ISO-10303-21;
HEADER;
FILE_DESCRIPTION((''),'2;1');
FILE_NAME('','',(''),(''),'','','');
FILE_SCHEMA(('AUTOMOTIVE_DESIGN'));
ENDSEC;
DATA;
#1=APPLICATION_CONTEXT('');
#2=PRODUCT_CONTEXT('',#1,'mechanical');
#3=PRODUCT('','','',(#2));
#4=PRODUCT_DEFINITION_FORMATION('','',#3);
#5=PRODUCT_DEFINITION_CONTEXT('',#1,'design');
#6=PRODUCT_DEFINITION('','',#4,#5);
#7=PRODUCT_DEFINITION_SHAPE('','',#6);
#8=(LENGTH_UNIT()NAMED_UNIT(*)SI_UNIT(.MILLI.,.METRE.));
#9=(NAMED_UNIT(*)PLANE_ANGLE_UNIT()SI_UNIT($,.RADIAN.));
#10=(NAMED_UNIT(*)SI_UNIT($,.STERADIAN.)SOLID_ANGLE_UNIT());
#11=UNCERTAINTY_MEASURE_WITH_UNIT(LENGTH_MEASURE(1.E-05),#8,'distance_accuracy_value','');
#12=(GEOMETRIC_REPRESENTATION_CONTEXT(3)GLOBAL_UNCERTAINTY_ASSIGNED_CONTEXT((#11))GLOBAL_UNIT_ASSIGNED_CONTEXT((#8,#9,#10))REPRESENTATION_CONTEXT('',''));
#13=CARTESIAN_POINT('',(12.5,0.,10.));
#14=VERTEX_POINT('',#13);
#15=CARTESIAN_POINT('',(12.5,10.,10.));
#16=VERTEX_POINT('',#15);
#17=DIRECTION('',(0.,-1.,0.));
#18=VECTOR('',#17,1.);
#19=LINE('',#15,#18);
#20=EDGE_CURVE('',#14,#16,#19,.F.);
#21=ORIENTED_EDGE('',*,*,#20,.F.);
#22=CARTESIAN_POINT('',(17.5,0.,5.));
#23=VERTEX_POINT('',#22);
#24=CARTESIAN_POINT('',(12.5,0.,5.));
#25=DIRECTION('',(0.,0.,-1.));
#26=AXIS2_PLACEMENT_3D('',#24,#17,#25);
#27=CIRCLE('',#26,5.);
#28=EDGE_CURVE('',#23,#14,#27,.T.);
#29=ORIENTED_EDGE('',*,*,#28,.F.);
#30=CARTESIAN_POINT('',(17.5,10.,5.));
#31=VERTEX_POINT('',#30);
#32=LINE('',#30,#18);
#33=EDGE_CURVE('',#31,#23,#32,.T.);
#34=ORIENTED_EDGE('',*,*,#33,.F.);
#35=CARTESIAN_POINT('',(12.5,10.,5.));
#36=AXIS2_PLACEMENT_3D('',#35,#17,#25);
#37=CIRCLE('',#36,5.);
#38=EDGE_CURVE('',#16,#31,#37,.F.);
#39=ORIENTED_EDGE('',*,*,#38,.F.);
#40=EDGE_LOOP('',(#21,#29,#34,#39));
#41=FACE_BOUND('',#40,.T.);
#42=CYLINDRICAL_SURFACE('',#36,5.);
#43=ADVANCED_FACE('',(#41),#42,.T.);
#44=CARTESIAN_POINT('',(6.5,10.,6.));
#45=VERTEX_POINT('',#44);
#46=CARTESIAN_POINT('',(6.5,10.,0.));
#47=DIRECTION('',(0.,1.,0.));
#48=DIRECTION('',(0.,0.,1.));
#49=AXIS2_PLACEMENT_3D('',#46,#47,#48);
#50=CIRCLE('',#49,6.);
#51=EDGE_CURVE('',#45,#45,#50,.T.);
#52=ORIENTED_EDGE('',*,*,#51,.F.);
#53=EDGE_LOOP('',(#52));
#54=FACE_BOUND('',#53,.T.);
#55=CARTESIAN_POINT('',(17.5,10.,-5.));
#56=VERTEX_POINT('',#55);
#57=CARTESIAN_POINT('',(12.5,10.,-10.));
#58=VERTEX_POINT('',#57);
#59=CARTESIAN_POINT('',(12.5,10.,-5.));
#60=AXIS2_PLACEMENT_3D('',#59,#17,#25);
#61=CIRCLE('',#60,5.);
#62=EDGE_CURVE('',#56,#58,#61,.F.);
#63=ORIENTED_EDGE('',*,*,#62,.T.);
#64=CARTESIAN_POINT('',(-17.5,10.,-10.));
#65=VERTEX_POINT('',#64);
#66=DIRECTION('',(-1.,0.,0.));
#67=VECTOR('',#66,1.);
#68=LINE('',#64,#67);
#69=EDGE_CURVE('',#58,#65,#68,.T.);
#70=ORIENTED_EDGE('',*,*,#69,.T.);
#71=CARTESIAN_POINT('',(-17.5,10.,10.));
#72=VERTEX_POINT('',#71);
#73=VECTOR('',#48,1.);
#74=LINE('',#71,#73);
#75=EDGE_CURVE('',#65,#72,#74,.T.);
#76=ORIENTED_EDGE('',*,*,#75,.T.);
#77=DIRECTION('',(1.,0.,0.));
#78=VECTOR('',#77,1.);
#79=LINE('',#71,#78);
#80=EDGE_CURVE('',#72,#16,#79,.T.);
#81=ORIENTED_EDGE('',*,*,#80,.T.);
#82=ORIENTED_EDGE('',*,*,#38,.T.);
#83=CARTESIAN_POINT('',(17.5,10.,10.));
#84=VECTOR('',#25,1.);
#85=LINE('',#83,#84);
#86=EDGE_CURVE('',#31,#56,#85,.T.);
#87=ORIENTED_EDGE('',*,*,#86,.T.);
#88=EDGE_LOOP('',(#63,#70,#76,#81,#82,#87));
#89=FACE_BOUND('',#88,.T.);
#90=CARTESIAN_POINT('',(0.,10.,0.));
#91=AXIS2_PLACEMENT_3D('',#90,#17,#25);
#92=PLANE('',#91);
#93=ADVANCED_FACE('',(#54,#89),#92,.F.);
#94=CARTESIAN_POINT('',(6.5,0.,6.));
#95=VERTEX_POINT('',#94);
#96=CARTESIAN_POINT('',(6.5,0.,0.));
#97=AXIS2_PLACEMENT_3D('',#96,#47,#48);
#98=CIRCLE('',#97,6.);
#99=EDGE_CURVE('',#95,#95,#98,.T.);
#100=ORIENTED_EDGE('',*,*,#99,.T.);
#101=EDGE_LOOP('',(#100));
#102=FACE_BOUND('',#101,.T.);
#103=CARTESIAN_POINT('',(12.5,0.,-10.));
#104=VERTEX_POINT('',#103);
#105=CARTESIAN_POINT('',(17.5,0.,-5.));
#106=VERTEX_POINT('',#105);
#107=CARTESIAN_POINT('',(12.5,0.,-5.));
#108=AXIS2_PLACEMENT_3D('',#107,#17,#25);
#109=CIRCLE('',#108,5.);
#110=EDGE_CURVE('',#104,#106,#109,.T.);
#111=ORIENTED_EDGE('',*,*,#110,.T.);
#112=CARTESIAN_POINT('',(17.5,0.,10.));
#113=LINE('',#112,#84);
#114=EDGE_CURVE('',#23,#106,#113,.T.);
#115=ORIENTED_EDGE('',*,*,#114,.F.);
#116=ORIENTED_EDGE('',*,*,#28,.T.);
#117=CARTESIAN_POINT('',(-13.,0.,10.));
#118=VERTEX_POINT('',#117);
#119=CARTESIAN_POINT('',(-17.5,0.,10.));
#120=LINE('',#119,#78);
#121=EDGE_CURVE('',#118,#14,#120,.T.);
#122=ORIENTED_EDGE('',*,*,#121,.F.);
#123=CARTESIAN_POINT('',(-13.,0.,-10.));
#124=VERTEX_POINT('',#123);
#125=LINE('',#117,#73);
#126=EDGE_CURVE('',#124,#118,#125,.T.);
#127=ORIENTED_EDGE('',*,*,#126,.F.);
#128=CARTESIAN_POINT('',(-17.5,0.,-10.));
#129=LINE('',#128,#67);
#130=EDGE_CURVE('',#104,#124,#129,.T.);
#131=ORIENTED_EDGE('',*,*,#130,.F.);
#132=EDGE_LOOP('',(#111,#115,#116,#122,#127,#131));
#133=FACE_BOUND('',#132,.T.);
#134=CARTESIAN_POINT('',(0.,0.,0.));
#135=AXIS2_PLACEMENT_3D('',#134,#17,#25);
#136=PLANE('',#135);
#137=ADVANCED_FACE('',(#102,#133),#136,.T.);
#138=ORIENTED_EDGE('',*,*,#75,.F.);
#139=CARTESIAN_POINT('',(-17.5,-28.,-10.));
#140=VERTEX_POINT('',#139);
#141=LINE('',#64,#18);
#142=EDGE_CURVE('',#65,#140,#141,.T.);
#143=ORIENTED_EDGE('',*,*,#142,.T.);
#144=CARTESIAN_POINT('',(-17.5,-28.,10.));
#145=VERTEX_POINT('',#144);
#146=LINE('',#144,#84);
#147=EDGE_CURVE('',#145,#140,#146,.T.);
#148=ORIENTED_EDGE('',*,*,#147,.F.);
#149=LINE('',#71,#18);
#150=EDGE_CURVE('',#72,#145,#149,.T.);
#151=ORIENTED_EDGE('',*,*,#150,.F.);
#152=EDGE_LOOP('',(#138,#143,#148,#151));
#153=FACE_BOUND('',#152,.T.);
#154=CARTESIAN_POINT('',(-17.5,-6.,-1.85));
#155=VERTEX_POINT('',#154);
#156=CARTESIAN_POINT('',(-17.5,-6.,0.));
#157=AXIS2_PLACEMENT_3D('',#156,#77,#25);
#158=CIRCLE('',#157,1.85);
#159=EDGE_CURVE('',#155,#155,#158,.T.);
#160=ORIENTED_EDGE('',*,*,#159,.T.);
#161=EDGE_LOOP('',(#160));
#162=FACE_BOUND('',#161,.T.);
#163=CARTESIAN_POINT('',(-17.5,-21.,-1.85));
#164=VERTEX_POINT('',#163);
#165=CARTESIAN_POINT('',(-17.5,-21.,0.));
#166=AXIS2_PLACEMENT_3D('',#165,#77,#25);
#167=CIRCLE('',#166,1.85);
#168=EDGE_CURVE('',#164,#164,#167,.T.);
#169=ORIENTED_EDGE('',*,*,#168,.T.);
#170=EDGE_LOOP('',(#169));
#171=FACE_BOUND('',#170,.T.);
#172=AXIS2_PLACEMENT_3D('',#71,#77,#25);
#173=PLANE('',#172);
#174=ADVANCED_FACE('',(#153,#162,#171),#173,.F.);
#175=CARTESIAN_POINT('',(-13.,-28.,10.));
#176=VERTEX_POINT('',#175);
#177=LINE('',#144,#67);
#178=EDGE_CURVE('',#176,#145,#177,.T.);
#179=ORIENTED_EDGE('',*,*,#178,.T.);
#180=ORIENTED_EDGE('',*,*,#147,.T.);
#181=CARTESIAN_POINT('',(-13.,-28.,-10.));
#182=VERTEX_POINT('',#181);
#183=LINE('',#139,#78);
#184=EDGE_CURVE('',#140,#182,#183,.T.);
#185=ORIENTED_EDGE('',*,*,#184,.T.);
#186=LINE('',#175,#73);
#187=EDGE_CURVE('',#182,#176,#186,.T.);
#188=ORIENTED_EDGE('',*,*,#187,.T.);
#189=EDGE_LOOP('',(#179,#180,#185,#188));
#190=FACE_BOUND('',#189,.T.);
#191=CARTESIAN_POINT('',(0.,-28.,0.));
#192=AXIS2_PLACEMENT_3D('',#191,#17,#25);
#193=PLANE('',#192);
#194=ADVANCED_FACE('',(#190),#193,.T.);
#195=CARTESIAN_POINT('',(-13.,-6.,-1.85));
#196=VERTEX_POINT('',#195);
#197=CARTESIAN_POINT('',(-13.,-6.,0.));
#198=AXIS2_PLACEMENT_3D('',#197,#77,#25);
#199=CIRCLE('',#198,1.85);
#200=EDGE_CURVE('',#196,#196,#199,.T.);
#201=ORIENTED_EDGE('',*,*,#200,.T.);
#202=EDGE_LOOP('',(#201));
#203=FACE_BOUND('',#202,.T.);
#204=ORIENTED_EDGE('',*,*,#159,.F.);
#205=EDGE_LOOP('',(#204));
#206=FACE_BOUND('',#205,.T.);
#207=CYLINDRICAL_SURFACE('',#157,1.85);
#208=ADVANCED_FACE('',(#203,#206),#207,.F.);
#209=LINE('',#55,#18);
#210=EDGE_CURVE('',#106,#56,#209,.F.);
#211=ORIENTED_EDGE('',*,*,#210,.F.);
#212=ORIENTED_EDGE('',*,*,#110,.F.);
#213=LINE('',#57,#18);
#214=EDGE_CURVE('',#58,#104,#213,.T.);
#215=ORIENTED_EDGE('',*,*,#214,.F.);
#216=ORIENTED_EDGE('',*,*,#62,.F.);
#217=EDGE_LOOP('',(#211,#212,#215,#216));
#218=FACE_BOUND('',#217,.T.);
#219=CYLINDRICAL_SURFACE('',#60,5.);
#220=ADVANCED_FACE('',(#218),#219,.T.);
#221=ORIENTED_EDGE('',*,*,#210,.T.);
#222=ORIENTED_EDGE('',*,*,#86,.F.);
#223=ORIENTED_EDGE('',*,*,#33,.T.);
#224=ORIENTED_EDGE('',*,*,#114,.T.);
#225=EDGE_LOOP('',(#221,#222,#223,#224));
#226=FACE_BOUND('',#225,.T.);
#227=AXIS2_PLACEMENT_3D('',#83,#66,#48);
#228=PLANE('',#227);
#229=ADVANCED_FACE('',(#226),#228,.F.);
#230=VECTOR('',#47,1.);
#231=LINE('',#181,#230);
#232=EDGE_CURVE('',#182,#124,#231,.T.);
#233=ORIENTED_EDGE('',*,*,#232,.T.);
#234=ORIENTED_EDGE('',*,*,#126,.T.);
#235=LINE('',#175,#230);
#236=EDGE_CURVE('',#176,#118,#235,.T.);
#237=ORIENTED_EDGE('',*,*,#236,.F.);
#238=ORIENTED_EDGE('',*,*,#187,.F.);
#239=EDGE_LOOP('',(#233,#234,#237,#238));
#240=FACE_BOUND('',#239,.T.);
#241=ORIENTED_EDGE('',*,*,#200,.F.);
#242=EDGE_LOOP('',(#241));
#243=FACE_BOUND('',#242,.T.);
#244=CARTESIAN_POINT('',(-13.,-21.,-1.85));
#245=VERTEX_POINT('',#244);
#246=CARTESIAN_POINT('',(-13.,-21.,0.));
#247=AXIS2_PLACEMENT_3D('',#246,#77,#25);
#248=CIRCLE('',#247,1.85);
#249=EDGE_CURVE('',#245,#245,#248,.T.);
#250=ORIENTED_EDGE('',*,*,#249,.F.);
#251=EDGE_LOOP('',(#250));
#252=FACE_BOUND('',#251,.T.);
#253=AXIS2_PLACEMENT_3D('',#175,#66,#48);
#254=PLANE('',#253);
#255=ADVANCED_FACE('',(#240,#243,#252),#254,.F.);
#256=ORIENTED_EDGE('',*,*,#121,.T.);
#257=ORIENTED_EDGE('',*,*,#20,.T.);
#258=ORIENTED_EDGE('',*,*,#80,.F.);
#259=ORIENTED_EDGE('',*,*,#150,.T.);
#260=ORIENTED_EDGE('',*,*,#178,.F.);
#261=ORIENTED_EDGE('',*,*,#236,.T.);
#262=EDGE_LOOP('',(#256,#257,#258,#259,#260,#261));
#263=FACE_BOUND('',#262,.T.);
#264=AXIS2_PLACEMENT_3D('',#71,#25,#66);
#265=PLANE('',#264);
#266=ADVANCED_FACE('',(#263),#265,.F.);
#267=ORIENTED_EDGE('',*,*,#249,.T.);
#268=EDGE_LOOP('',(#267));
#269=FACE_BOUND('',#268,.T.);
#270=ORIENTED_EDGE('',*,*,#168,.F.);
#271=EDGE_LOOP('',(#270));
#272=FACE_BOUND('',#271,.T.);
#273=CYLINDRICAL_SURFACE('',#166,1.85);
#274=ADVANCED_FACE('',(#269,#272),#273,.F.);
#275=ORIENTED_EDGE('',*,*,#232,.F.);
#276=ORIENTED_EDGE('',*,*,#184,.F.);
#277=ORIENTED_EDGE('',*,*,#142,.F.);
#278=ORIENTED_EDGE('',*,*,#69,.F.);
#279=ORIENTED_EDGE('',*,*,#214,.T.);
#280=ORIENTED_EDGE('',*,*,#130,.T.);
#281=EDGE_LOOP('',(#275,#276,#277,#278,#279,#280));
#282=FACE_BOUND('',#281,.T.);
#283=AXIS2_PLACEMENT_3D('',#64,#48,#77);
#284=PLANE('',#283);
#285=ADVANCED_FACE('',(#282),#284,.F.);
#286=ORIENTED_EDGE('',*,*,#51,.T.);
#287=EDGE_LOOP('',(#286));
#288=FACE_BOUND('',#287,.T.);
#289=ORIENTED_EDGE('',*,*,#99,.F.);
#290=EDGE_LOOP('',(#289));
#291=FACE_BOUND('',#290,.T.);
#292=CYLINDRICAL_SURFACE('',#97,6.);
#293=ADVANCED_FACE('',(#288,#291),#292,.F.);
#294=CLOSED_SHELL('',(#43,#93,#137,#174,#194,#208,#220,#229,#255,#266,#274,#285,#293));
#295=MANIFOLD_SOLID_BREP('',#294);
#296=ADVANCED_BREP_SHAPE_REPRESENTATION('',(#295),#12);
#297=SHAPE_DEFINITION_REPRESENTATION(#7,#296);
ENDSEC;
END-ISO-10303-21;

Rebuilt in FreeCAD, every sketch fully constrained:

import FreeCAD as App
import Part
import Sketcher
from FreeCAD import Vector
Q = App.Units.Quantity


def edges_at(feature, points):
    """Names of the edges that pass closest to the given points."""
    edges = feature.Shape.Edges
    near = lambda p: min(range(len(edges)), key=lambda i: edges[i].distToShape(Part.Vertex(*p))[0])
    return sorted({f"Edge{near(p) + 1}" for p in points})


def add_polygon(sketch, points):
    """Adds a closed chain of lines whose ends are joined by coincident constraints."""
    first, n = sketch.GeometryCount, len(points)
    for a, b in zip(points, points[1:] + points[:1]):
        sketch.addGeometry(Part.LineSegment(App.Vector(*a, 0), App.Vector(*b, 0)), False)
    for i in range(n):
        sketch.addConstraint(Sketcher.Constraint("Coincident", first + i, 2, first + (i + 1) % n, 1))

doc = App.newDocument("Part")
body = doc.addObject("PartDesign::Body", "Body")

# Sketch on XZ plane
sketch1 = body.newObject("Sketcher::SketchObject", "Sketch")
sketch1.AttachmentSupport = (doc.getObject("XZ_Plane"), [""])
sketch1.MapMode = "FlatFace"
add_polygon(sketch1, [(-18, -10), (-18, 10), (18, 10), (18, -10)])  # lines 0-3
sketch1.addConstraint(Sketcher.Constraint("Vertical", 0))
sketch1.addConstraint(Sketcher.Constraint("Horizontal", 1))
sketch1.addConstraint(Sketcher.Constraint("Vertical", 2))
sketch1.addConstraint(Sketcher.Constraint("Horizontal", 3))
sketch1.addConstraint(Sketcher.Constraint("Symmetric", 0, 2, 2, 2, -1, 1))
sketch1.addConstraint(Sketcher.Constraint("DistanceX", 1, 1, 1, 2, Q("35 mm")))
sketch1.addConstraint(Sketcher.Constraint("DistanceY", 0, 1, 0, 2, Q("20 mm")))
pad1 = body.newObject("PartDesign::Pad", "Pad")
pad1.Profile = sketch1
pad1.Length = 10
pad1.Reversed = True
doc.recompute()

fillet = body.newObject("PartDesign::Fillet", "Fillet")
fillet.Base = (pad1, edges_at(pad1, [(17.5, 5, 10), (17.5, 5, -10)]))
fillet.Radius = 5

# Sketch on XZ plane
sketch2 = body.newObject("Sketcher::SketchObject", "Sketch001")
sketch2.AttachmentSupport = (doc.getObject("XZ_Plane"), [""])
sketch2.MapMode = "FlatFace"
sketch2.AttachmentOffset = App.Placement(Vector(0, 0, -10), App.Rotation())
sketch2.addGeometry(Part.Circle(Vector(6, 0, 0), Vector(0, 0, 1), 6), False)
sketch2.addConstraint(Sketcher.Constraint("PointOnObject", 0, 3, -1))
sketch2.addConstraint(Sketcher.Constraint("Diameter", 0, Q("12 mm")))
sketch2.addConstraint(Sketcher.Constraint("DistanceX", -1, 1, 0, 3, Q("6.5 mm")))
pocket1 = body.newObject("PartDesign::Pocket", "Pocket")
pocket1.Profile = sketch2
pocket1.Type = "ThroughAll"
pocket1.Reversed = True

# Sketch on XZ plane
sketch3 = body.newObject("Sketcher::SketchObject", "Sketch002")
sketch3.AttachmentSupport = (doc.getObject("XZ_Plane"), [""])
sketch3.MapMode = "FlatFace"
add_polygon(sketch3, [(-17.5, 10), (-17.5, -10), (-13, -10), (-13, 10)])  # lines 0-3
sketch3.addConstraint(Sketcher.Constraint("Vertical", 0))
sketch3.addConstraint(Sketcher.Constraint("Horizontal", 1))
sketch3.addConstraint(Sketcher.Constraint("Vertical", 2))
sketch3.addConstraint(Sketcher.Constraint("Horizontal", 3))
sketch3.addConstraint(Sketcher.Constraint("DistanceY", 0, 2, 0, 1, Q("20 mm")))
sketch3.addConstraint(Sketcher.Constraint("DistanceX", 1, 1, 1, 2, Q("4.5 mm")))
sketch3.addConstraint(Sketcher.Constraint("DistanceY", 0, 2, -1, 1, Q("10 mm")))
sketch3.addConstraint(Sketcher.Constraint("DistanceX", 1, 2, -1, 1, Q("13 mm")))
pad2 = body.newObject("PartDesign::Pad", "Pad001")
pad2.Profile = sketch3
pad2.Length = 28

# Sketch on YZ plane
sketch4 = body.newObject("Sketcher::SketchObject", "Sketch003")
sketch4.AttachmentSupport = (doc.getObject("YZ_Plane"), [""])
sketch4.MapMode = "FlatFace"
sketch4.AttachmentOffset = App.Placement(Vector(0, 0, -13), App.Rotation())
sketch4.addGeometry(Part.Circle(Vector(-6, 0, 0), Vector(0, 0, 1), 1.9), False)
sketch4.addGeometry(Part.Circle(Vector(-21, 0, 0), Vector(0, 0, 1), 1.9), False)
sketch4.addConstraint(Sketcher.Constraint("Equal", 0, 1))
sketch4.addConstraint(Sketcher.Constraint("PointOnObject", 0, 3, -1))
sketch4.addConstraint(Sketcher.Constraint("PointOnObject", 1, 3, -1))
sketch4.addConstraint(Sketcher.Constraint("Diameter", 0, Q("3.7 mm")))
sketch4.addConstraint(Sketcher.Constraint("DistanceX", 0, 3, -1, 1, Q("6 mm")))
sketch4.addConstraint(Sketcher.Constraint("DistanceX", 1, 3, -1, 1, Q("21 mm")))
pocket2 = body.newObject("PartDesign::Pocket", "Pocket001")
pocket2.Profile = sketch4
pocket2.Type = "ThroughAll"

doc.recompute()
